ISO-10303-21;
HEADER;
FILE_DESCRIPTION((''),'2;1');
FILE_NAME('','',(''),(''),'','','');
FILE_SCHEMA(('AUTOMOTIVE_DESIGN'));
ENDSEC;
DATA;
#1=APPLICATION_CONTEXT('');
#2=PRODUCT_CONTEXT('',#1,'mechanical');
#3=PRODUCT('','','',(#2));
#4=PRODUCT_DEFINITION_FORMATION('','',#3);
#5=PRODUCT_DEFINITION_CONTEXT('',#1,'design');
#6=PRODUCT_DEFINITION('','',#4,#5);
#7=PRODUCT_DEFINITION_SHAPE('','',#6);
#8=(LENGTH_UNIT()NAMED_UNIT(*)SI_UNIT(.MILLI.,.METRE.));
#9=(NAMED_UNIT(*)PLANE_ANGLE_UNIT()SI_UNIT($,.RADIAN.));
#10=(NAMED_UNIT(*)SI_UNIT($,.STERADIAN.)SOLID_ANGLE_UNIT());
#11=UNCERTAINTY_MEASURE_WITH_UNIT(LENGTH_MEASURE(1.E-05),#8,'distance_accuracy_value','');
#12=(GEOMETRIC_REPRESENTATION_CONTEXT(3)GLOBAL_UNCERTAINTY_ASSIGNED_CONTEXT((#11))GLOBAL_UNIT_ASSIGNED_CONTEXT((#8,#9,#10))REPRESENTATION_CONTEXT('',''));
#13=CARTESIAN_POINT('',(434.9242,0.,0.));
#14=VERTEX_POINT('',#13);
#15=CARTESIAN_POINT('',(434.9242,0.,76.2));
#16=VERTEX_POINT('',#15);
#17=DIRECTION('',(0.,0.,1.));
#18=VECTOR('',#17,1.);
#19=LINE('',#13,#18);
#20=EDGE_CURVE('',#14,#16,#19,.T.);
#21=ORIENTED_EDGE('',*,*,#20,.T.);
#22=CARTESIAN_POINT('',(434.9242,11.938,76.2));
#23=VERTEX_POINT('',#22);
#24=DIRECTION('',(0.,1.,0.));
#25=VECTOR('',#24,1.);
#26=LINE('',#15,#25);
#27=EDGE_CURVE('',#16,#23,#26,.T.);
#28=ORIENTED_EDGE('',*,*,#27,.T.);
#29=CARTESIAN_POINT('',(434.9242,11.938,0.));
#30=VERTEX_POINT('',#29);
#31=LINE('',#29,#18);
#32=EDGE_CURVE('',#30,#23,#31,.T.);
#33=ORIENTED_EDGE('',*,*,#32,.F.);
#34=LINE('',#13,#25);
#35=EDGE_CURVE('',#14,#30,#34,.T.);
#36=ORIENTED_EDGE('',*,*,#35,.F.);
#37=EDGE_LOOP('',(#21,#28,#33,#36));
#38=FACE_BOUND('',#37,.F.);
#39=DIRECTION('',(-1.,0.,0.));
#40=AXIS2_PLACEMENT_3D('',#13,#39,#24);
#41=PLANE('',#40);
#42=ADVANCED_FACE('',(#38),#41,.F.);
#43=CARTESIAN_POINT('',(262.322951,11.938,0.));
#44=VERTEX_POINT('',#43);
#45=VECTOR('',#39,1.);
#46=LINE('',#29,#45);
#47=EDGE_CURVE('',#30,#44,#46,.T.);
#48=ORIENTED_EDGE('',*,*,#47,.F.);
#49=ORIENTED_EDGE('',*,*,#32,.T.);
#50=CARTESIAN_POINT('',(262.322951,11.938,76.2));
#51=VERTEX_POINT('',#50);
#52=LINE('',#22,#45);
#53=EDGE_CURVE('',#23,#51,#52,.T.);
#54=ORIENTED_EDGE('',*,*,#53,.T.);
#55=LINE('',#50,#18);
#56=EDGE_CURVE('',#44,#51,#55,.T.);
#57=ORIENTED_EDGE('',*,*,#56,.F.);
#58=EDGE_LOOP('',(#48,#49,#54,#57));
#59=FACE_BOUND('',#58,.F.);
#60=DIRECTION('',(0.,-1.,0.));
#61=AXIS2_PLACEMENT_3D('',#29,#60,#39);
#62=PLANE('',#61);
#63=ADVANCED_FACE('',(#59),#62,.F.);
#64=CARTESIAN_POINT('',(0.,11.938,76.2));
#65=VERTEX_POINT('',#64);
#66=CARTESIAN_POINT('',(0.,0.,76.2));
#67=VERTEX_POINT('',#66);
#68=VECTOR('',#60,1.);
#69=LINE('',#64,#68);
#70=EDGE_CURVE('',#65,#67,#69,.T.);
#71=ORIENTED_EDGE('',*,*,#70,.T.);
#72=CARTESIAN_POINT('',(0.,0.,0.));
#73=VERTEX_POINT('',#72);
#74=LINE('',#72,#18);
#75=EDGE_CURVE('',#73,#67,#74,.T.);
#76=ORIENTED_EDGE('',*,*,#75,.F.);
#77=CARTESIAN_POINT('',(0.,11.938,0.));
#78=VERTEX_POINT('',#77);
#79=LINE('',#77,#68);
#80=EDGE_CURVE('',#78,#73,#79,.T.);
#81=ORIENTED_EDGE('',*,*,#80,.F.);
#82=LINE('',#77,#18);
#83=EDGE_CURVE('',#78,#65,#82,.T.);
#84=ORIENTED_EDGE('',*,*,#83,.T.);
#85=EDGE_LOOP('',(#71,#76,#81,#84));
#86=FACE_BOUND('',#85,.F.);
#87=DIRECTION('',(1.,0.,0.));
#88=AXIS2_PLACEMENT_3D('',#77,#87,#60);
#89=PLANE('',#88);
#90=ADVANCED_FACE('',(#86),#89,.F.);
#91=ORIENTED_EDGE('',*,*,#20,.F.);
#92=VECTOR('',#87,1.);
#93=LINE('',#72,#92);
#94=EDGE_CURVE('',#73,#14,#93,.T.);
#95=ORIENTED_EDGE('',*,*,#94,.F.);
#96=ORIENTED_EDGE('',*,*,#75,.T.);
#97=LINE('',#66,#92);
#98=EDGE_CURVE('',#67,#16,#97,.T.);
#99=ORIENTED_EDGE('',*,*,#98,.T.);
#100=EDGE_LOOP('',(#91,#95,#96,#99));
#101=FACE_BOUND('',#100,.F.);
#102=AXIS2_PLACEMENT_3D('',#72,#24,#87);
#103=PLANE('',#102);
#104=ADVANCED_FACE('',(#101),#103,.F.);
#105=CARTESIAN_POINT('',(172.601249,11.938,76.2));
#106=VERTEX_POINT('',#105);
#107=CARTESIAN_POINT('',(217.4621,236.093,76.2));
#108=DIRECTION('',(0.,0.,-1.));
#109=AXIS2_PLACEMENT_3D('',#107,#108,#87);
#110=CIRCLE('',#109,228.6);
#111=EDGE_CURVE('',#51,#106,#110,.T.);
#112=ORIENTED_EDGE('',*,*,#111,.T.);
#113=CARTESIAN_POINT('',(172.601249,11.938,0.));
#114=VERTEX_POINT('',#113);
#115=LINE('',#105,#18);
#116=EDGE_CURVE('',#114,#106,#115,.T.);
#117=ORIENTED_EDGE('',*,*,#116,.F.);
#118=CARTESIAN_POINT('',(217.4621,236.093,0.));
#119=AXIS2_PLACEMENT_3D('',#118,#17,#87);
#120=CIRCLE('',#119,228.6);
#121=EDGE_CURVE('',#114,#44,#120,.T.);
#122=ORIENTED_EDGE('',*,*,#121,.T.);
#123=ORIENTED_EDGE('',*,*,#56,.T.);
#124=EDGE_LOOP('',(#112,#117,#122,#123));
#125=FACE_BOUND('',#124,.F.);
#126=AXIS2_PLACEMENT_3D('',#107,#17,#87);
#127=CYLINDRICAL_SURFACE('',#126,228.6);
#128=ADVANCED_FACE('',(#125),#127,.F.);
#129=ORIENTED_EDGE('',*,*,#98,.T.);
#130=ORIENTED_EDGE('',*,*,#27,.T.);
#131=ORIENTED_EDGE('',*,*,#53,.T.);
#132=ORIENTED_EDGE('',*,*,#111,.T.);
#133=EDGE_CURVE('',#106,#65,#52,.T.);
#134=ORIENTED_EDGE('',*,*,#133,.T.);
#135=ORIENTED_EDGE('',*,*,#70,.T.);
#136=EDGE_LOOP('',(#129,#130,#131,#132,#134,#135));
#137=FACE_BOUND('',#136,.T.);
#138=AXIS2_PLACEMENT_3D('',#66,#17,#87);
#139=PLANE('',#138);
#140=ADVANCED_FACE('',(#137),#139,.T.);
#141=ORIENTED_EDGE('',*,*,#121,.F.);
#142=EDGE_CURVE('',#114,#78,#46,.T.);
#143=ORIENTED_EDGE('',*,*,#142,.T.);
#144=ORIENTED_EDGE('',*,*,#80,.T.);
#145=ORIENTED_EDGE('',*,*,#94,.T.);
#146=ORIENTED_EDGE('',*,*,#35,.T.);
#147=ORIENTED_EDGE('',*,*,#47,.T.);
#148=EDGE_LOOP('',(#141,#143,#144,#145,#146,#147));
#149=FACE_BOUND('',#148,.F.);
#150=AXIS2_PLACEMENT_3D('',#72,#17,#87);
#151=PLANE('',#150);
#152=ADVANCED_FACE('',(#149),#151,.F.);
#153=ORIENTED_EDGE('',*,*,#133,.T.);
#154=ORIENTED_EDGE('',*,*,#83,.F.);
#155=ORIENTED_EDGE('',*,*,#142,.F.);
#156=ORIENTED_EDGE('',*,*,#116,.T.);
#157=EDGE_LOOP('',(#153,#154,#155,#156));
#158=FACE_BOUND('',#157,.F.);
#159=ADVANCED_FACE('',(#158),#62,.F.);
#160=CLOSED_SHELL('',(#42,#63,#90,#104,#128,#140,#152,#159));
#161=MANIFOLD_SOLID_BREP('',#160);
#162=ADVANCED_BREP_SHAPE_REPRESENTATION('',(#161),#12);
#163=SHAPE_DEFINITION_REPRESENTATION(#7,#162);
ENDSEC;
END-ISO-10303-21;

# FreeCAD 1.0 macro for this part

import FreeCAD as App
import Part
import Sketcher
Q = App.Units.Quantity

doc = App.newDocument("Part")
body = doc.addObject("PartDesign::Body", "Body")

sketch1 = doc.addObject("Sketcher::SketchObject", "Sketch")
body.addObject(sketch1)
sketch1.AttachmentSupport = (doc.XY_Plane, [""])
sketch1.MapMode = "FlatFace"
sketch1.addGeometry([
    Part.LineSegment(App.Vector(0, 12, 0), App.Vector(0, 0, 0)),
    Part.LineSegment(App.Vector(0, 0, 0), App.Vector(435, 0, 0)),
    Part.LineSegment(App.Vector(435, 0, 0), App.Vector(435, 12, 0)),
    Part.LineSegment(App.Vector(435, 12, 0), App.Vector(0, 12, 0)),
], False)
sketch1.addConstraint([
    Sketcher.Constraint("Coincident", 0, 2, 1, 1),
    Sketcher.Constraint("Coincident", 1, 2, 2, 1),
    Sketcher.Constraint("Coincident", 2, 2, 3, 1),
    Sketcher.Constraint("Coincident", 3, 2, 0, 1),
    Sketcher.Constraint("Vertical", 0),
    Sketcher.Constraint("Horizontal", 1),
    Sketcher.Constraint("Vertical", 2),
    Sketcher.Constraint("Horizontal", 3),
    Sketcher.Constraint("Coincident", 0, 2, -1, 1),
    Sketcher.Constraint("DistanceY", 0, 2, 0, 1, Q("0.47 in")),
    Sketcher.Constraint("DistanceX", 1, 1, 1, 2, Q("17.123 in")),
])
pad1 = doc.addObject("PartDesign::Pad", "Pad")
body.addObject(pad1)
pad1.Profile = sketch1
pad1.Length = Q("3 in")

sketch2 = doc.addObject("Sketcher::SketchObject", "Sketch001")
body.addObject(sketch2)
sketch2.AttachmentSupport = (doc.XY_Plane, [""])
sketch2.MapMode = "FlatFace"
sketch2.AttachmentOffset = App.Placement(App.Vector(0, 0, 3 * 25.4), App.Rotation())
sketch2.addGeometry(Part.Circle(App.Vector(217, 236, 0), App.Vector(0, 0, 1), 229), False)
sketch2.addConstraint([
    Sketcher.Constraint("Diameter", 0, Q("18 in")),
    Sketcher.Constraint("DistanceX", -1, 1, 0, 3, Q("8.5615 in")),
    Sketcher.Constraint("DistanceY", -1, 1, 0, 3, Q("9.295 in")),
])
pocket1 = doc.addObject("PartDesign::Pocket", "Pocket")
body.addObject(pocket1)
pocket1.Profile = sketch2
pocket1.Type = "ThroughAll"

doc.recompute()
